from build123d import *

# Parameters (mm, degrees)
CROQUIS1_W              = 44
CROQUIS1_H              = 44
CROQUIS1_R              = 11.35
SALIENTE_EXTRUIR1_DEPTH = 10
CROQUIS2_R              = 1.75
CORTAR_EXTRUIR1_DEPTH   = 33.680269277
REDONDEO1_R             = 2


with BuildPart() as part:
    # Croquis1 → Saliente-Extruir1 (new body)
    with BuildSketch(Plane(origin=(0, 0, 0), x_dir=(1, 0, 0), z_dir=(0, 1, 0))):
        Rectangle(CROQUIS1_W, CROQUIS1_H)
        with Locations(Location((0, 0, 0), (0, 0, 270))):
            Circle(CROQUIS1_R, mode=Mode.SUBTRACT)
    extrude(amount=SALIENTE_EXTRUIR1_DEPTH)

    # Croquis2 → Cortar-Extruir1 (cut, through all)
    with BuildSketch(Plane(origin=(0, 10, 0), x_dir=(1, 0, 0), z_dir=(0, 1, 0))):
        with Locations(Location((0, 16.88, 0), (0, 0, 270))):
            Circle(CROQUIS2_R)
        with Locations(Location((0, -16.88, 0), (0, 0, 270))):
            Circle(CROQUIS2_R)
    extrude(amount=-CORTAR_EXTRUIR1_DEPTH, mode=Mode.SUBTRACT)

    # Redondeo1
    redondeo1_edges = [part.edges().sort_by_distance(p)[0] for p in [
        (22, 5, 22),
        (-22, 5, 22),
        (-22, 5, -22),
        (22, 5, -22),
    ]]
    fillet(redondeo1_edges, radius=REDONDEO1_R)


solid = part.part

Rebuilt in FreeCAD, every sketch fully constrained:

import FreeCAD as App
import Part
import Sketcher

V = App.Vector


def edges_at(feature, points):
    """Names of the edges that pass closest to the given points."""
    edges = feature.Shape.Edges
    near = lambda p: min(range(len(edges)), key=lambda i: edges[i].distToShape(Part.Vertex(*p))[0])
    return sorted({f"Edge{near(p) + 1}" for p in points})

doc = App.newDocument("Part")
body = doc.addObject("PartDesign::Body", "Body")

# Sketch on XZ plane
sketch1 = body.newObject("Sketcher::SketchObject", "Sketch")
sketch1.AttachmentSupport = (doc.getObject("XZ_Plane"), [""])
sketch1.MapMode = "FlatFace"
sketch1.addGeometry([
    Part.LineSegment(V(-22, -22, 0), V(-22, 22, 0)),  # 0
    Part.LineSegment(V(-22, 22, 0), V(22, 22, 0)),  # 1
    Part.LineSegment(V(22, 22, 0), V(22, -22, 0)),  # 2
    Part.LineSegment(V(22, -22, 0), V(-22, -22, 0)),  # 3
    Part.Circle(V(0, 0, 0), V(0, 0, 1), 11),  # 4
], False)
sketch1.addConstraint([
    Sketcher.Constraint("Coincident", 0, 2, 1, 1),
    Sketcher.Constraint("Coincident", 1, 2, 2, 1),
    Sketcher.Constraint("Coincident", 2, 2, 3, 1),
    Sketcher.Constraint("Coincident", 3, 2, 0, 1),
    Sketcher.Constraint("Vertical", 0),
    Sketcher.Constraint("Horizontal", 1),
    Sketcher.Constraint("Vertical", 2),
    Sketcher.Constraint("Horizontal", 3),
    Sketcher.Constraint("Coincident", 4, 3, -1, 1),
    Sketcher.Constraint("Symmetric", 0, 2, 2, 2, -1, 1),
    Sketcher.Constraint("Equal", 3, 0),
    Sketcher.Constraint("Diameter", 4, 22.7),
    Sketcher.Constraint("DistanceX", 1, 1, 1, 2, 44.0),
])
pad1 = body.newObject("PartDesign::Pad", "Pad")
pad1.Profile = sketch1
pad1.Length = 10
pad1.Reversed = True

# Sketch on XZ plane
sketch2 = body.newObject("Sketcher::SketchObject", "Sketch001")
sketch2.AttachmentSupport = (doc.getObject("XZ_Plane"), [""])
sketch2.MapMode = "FlatFace"
sketch2.AttachmentOffset = App.Placement(V(0, 0, -10), App.Rotation())
sketch2.addGeometry([
    Part.Circle(V(0, -16.9, 0), V(0, 0, 1), 1.8),
    Part.Circle(V(0, 16.9, 0), V(0, 0, 1), 1.8),
], False)
sketch2.addConstraint([
    Sketcher.Constraint("Equal", 0, 1),
    Sketcher.Constraint("Symmetric", 0, 3, 1, 3, -1, 1),
    Sketcher.Constraint("PointOnObject", 0, 3, -2),
    Sketcher.Constraint("Diameter", 0, 3.5),
    Sketcher.Constraint("DistanceY", 0, 3, -1, 1, 16.88),
])
pocket1 = body.newObject("PartDesign::Pocket", "Pocket")
pocket1.Profile = sketch2
pocket1.Type = "ThroughAll"
pocket1.Reversed = True
doc.recompute()

fillet = body.newObject("PartDesign::Fillet", "Fillet")
fillet.Base = (pocket1, edges_at(pocket1, [
    (22, 5, 22),
    (-22, 5, 22),
    (-22, 5, -22),
    (22, 5, -22),
]))
fillet.Radius = 2

doc.recompute()
